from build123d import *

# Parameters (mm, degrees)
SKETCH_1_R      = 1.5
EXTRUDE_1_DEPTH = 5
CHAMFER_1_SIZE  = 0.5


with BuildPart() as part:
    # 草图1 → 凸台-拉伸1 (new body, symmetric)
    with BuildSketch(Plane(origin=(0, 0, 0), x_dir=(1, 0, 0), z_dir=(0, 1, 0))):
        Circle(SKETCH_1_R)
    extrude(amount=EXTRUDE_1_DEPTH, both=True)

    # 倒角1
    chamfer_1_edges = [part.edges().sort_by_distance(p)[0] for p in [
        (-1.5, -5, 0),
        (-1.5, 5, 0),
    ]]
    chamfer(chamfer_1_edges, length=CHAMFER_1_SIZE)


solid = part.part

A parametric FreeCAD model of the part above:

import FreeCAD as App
import Part
import Sketcher


def edges_at(feature, points):
    """Names of the edges that pass closest to the given points."""
    edges = feature.Shape.Edges
    near = lambda p: min(range(len(edges)), key=lambda i: edges[i].distToShape(Part.Vertex(*p))[0])
    return sorted({f"Edge{near(p) + 1}" for p in points})

doc = App.newDocument("Part")
body = doc.addObject("PartDesign::Body", "Body")

sketch1 = body.newObject("Sketcher::SketchObject", "Sketch")
sketch1.AttachmentSupport = (doc.getObject("XZ_Plane"), [""])
sketch1.MapMode = "FlatFace"
sketch1.addGeometry(Part.Circle(App.Vector(0, 0, 0), App.Vector(0, 0, 1), 1.5), False)
sketch1.addConstraint(Sketcher.Constraint("Coincident", 0, 3, -1, 1))
sketch1.addConstraint(Sketcher.Constraint("Diameter", 0, 3.0))
pad1 = body.newObject("PartDesign::Pad", "Pad")
pad1.Profile = sketch1
pad1.Length = 10
pad1.Midplane = True
doc.recompute()

chamfer = body.newObject("PartDesign::Chamfer", "Chamfer")
chamfer.Base = (pad1, edges_at(pad1, [(-1.5, -5, 0), (-1.5, 5, 0)]))
chamfer.Size = 0.5

doc.recompute()
